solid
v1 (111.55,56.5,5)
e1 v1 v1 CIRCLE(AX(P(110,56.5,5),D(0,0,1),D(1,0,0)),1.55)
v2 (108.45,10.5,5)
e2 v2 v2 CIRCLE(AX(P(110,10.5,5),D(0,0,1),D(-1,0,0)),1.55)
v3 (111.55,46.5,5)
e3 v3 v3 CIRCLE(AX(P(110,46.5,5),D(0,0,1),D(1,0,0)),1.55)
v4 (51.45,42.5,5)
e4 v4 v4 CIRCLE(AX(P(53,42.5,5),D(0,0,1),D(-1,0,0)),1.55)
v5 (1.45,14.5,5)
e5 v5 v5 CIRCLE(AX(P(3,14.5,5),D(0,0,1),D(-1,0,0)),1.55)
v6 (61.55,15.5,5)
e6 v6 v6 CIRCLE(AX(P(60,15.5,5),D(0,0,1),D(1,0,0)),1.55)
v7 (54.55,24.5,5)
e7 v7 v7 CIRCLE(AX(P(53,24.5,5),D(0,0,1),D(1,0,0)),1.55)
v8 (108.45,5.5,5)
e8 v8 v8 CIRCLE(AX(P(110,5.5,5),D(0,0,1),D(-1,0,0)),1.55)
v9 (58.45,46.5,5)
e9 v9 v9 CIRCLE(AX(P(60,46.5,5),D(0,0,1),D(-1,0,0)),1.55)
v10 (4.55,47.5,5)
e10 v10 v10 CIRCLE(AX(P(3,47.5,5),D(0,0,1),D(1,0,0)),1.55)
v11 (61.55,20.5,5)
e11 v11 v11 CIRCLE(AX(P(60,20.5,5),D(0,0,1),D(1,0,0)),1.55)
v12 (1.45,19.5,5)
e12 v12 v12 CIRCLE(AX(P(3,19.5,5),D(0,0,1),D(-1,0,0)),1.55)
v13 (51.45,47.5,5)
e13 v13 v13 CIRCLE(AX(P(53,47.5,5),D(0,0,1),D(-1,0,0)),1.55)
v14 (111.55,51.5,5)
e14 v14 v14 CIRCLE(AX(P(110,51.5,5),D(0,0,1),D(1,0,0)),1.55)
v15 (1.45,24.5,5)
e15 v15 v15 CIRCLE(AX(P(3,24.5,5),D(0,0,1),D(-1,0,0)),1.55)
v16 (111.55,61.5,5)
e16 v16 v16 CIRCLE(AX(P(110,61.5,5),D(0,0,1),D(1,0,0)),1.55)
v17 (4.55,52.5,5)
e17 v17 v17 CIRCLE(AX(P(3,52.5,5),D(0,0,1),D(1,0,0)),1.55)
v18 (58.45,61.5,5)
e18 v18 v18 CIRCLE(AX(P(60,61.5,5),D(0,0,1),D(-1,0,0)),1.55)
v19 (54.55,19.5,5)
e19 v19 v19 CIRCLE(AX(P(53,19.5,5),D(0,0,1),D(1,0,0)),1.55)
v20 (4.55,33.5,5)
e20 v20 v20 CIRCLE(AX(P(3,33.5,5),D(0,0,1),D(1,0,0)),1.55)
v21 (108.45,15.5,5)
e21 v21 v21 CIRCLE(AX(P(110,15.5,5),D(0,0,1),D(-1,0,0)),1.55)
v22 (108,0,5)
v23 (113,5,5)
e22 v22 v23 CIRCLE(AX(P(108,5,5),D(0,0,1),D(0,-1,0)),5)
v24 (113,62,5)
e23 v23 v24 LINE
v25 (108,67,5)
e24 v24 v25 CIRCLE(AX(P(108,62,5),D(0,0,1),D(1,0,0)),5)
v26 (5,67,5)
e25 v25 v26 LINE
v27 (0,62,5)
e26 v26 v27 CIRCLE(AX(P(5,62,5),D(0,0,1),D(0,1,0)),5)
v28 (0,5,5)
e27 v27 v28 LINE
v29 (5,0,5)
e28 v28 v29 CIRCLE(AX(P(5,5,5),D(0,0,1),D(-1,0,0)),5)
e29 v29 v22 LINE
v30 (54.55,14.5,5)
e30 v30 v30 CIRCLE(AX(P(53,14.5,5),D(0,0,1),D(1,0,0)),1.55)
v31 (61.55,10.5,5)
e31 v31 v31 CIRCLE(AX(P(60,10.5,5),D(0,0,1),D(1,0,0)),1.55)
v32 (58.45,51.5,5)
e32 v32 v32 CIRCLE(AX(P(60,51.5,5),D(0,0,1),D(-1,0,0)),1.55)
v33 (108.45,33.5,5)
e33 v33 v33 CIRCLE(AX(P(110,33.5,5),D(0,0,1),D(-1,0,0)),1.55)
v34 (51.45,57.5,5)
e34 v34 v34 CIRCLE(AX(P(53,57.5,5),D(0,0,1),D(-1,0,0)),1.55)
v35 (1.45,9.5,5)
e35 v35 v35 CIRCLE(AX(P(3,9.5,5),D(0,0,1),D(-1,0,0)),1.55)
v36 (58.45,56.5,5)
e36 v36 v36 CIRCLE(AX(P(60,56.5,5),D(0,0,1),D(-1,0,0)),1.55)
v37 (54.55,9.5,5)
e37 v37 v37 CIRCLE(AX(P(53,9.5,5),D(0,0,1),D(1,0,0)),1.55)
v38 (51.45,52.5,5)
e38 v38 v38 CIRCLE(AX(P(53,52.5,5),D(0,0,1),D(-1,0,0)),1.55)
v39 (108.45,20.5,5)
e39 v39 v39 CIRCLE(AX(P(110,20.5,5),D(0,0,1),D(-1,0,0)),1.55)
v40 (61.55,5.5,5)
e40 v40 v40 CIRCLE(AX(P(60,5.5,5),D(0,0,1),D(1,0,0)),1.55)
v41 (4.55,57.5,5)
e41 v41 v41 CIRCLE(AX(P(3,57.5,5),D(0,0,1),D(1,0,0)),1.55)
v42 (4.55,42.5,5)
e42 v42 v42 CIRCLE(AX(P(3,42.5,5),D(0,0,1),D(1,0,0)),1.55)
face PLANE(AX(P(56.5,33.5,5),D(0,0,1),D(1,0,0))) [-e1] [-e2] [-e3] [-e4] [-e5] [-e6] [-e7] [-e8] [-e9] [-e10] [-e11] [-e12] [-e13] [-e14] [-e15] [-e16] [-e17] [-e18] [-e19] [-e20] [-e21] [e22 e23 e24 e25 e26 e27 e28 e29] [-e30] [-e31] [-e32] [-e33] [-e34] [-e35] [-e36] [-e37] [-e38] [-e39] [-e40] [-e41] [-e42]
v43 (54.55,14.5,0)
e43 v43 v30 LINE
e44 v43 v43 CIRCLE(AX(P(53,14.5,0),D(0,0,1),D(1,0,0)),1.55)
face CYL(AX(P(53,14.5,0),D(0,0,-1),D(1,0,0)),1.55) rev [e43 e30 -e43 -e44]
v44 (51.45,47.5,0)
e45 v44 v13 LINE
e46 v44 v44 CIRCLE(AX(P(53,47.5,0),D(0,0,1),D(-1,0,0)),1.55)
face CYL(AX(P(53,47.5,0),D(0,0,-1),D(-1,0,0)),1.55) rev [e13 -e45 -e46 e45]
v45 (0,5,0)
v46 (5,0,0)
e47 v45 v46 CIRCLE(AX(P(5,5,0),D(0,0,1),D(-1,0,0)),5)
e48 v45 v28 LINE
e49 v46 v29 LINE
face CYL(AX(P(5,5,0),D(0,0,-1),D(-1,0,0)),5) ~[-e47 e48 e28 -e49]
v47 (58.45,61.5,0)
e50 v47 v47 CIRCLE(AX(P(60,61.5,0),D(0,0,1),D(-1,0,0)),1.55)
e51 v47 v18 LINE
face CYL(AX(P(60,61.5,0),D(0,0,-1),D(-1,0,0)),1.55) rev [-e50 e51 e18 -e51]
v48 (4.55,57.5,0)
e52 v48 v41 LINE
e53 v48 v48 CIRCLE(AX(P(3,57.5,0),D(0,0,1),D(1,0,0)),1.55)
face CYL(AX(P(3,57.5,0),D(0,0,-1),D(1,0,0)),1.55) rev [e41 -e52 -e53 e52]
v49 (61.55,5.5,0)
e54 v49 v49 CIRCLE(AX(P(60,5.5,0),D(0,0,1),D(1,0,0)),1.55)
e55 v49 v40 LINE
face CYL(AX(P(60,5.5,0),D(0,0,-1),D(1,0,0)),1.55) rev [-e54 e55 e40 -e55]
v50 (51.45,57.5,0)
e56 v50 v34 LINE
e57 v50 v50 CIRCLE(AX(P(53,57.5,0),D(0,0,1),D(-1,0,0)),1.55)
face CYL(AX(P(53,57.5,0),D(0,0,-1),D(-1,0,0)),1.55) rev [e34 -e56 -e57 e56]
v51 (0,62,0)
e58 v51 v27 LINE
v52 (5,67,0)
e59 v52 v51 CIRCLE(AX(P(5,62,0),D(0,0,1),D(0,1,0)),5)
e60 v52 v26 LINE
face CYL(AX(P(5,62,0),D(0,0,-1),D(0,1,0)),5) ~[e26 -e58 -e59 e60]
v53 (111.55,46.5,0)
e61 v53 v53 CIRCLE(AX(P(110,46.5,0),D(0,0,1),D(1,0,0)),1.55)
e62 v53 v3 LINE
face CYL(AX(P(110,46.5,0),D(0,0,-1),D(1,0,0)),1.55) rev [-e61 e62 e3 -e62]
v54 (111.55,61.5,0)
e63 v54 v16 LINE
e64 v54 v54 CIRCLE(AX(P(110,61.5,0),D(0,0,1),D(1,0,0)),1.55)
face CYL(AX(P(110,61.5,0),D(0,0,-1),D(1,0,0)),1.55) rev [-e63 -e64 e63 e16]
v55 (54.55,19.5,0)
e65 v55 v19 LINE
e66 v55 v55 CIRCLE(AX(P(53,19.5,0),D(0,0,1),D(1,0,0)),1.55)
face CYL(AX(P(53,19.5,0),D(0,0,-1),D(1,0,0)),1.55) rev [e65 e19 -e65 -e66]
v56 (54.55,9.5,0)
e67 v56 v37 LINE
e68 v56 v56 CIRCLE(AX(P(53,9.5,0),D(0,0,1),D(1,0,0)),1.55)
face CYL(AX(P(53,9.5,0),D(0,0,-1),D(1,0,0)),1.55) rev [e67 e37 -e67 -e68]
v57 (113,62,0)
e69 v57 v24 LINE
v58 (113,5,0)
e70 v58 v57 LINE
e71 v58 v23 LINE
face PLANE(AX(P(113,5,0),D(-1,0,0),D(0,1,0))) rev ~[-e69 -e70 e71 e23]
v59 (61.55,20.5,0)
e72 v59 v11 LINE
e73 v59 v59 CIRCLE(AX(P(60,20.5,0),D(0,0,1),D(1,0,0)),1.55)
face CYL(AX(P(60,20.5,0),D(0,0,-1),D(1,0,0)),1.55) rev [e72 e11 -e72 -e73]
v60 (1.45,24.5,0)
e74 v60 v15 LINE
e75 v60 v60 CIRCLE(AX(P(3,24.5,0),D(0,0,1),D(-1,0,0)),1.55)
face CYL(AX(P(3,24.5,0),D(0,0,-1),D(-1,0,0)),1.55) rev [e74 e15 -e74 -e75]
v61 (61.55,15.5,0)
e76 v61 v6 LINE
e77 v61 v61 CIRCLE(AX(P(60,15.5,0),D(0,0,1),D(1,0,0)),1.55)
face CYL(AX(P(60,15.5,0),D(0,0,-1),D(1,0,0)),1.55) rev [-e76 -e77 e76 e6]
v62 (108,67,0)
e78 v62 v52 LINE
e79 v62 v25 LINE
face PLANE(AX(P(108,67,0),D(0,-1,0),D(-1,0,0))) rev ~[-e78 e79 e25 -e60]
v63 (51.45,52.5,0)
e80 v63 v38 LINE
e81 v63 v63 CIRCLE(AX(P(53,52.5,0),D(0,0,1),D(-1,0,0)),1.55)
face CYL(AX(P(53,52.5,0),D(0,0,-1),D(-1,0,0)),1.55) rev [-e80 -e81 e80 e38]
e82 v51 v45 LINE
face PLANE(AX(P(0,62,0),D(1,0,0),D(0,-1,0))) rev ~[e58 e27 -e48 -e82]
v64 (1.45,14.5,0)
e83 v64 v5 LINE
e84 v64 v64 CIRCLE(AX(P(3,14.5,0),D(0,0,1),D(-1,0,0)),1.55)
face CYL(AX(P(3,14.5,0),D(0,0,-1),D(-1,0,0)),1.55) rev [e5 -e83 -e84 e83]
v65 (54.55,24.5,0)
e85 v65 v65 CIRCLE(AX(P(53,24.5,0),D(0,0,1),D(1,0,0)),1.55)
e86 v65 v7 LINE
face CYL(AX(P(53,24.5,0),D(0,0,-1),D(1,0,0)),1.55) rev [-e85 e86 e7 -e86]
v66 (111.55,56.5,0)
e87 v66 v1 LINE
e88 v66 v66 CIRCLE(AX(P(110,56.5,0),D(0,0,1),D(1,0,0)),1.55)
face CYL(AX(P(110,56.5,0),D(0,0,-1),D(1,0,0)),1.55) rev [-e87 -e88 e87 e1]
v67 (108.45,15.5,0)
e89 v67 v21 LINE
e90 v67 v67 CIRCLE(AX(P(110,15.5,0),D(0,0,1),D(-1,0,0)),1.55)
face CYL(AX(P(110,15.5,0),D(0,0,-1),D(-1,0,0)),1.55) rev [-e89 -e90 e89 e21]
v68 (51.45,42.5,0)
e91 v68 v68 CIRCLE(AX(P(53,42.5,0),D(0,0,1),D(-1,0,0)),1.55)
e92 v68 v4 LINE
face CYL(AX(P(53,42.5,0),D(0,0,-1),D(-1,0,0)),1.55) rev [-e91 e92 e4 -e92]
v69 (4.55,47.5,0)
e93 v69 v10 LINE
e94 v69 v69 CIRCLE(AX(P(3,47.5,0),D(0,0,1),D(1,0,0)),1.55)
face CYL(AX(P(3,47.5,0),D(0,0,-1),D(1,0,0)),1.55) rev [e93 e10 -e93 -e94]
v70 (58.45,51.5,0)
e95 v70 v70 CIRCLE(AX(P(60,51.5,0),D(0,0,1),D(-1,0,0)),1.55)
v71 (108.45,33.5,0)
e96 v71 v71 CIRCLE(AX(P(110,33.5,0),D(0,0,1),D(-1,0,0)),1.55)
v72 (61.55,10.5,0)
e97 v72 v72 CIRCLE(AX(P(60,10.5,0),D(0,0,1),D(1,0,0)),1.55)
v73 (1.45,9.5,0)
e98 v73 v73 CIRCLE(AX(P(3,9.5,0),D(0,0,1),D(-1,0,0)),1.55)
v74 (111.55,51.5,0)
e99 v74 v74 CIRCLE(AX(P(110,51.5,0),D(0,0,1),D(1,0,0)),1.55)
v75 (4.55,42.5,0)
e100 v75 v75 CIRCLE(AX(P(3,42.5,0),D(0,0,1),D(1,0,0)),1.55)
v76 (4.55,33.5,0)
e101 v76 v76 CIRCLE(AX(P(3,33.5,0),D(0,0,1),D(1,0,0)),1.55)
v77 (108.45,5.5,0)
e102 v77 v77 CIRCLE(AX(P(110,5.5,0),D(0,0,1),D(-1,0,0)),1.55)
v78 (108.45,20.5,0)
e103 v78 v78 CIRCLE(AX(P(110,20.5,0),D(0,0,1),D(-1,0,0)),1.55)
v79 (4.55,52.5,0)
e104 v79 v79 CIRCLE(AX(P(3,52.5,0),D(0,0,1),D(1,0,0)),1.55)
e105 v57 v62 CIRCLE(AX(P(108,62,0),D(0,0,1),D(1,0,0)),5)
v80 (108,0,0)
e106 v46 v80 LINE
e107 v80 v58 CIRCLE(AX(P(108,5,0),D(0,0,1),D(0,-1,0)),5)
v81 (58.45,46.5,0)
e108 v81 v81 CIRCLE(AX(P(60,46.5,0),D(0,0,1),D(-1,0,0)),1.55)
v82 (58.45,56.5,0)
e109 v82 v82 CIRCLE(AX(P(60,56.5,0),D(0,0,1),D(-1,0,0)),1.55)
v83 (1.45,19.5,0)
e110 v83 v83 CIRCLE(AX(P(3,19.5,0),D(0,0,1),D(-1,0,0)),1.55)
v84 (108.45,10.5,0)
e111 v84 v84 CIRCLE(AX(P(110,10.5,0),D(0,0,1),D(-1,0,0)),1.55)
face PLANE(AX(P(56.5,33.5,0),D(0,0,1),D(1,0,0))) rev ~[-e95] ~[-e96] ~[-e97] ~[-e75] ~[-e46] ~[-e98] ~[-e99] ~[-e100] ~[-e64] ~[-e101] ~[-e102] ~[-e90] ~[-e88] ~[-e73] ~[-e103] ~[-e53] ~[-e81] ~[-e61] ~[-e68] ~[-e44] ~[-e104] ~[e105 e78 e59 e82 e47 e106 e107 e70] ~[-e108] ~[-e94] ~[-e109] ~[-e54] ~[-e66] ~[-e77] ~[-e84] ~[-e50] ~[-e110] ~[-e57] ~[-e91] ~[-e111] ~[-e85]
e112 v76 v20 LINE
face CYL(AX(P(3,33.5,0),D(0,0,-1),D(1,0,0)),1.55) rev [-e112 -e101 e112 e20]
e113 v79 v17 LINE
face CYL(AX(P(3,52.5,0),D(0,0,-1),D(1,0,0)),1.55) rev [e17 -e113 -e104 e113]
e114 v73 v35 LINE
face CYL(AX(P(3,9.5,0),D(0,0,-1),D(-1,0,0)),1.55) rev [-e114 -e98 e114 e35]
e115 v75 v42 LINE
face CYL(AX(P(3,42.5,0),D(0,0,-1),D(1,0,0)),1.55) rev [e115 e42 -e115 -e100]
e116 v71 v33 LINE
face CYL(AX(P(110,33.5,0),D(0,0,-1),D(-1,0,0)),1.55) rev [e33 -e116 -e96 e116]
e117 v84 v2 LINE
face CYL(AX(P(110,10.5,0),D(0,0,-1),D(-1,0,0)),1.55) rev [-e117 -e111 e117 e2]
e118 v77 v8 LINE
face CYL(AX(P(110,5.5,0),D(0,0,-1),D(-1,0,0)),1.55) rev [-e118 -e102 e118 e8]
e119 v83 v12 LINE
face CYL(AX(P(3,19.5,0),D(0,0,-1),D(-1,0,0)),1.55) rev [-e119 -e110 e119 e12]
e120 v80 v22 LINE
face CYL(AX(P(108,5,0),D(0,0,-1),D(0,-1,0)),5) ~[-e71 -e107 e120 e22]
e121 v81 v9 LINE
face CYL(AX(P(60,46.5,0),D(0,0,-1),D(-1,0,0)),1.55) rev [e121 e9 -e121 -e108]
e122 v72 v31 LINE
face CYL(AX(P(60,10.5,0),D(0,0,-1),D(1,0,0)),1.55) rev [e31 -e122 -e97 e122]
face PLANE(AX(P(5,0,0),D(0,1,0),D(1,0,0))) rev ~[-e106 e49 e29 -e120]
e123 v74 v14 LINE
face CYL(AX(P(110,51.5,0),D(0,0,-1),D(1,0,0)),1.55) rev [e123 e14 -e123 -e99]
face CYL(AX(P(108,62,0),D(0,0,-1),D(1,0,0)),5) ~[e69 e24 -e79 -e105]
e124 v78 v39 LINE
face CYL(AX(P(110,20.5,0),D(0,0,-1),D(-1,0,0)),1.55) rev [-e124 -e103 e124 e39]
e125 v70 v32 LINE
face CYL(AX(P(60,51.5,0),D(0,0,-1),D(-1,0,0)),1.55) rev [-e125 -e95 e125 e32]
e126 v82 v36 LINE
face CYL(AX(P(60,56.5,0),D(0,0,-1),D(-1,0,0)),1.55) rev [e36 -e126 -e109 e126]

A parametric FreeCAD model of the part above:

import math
import FreeCAD as App
import Part
import Sketcher

V = App.Vector
Q = App.Units.Quantity

doc = App.newDocument("Part")
body = doc.addObject("PartDesign::Body", "Body")

# Sketch on XY plane
sketch1 = doc.addObject("Sketcher::SketchObject", "Sketch")
body.addObject(sketch1)
sketch1.AttachmentSupport = (doc.XY_Plane, [""])
sketch1.MapMode = "FlatFace"
sketch1.addGeometry([
    Part.LineSegment(V(5, 0, 0), V(108, 0, 0)),  # 0
    Part.ArcOfCircle(Part.Circle(V(108, 5, 0), V(0, 0, 1), 5), math.radians(-90), math.radians(0)),  # 1
    Part.LineSegment(V(113, 5, 0), V(113, 62, 0)),  # 2
    Part.ArcOfCircle(Part.Circle(V(108, 62, 0), V(0, 0, 1), 5), math.radians(0), math.radians(90)),  # 3
    Part.LineSegment(V(108, 67, 0), V(5, 67, 0)),  # 4
    Part.ArcOfCircle(Part.Circle(V(5, 62, 0), V(0, 0, 1), 5), math.radians(90), math.radians(180)),  # 5
    Part.LineSegment(V(0, 62, 0), V(0, 5, 0)),  # 6
    Part.ArcOfCircle(Part.Circle(V(5, 5, 0), V(0, 0, 1), 5), math.radians(180), math.radians(270)),  # 7
    Part.Circle(V(3, 9.5, 0), V(0, 0, 1), 1.6),  # 8
    Part.Circle(V(3, 14.5, 0), V(0, 0, 1), 1.6),  # 9
    Part.Circle(V(53, 9.5, 0), V(0, 0, 1), 1.6),  # 10
    Part.Circle(V(53, 14.5, 0), V(0, 0, 1), 1.6),  # 11
    Part.Circle(V(3, 19.5, 0), V(0, 0, 1), 1.6),  # 12
    Part.Circle(V(3, 24.5, 0), V(0, 0, 1), 1.6),  # 13
    Part.Circle(V(53, 19.5, 0), V(0, 0, 1), 1.6),  # 14
    Part.Circle(V(53, 24.5, 0), V(0, 0, 1), 1.6),  # 15
    Part.Circle(V(60, 5.5, 0), V(0, 0, 1), 1.6),  # 16
    Part.Circle(V(60, 10.5, 0), V(0, 0, 1), 1.6),  # 17
    Part.Circle(V(60, 15.5, 0), V(0, 0, 1), 1.6),  # 18
    Part.Circle(V(110, 5.5, 0), V(0, 0, 1), 1.6),  # 19
    Part.Circle(V(110, 10.5, 0), V(0, 0, 1), 1.6),  # 20
    Part.Circle(V(110, 15.5, 0), V(0, 0, 1), 1.6),  # 21
    Part.Circle(V(60, 20.5, 0), V(0, 0, 1), 1.6),  # 22
    Part.Circle(V(110, 20.5, 0), V(0, 0, 1), 1.6),  # 23
    Part.Circle(V(3, 33.5, 0), V(0, 0, 1), 1.6),  # 24
    Part.Circle(V(3, 42.5, 0), V(0, 0, 1), 1.6),  # 25
    Part.Circle(V(3, 47.5, 0), V(0, 0, 1), 1.6),  # 26
    Part.Circle(V(53, 42.5, 0), V(0, 0, 1), 1.6),  # 27
    Part.Circle(V(53, 47.5, 0), V(0, 0, 1), 1.6),  # 28
    Part.Circle(V(3, 52.5, 0), V(0, 0, 1), 1.6),  # 29
    Part.Circle(V(3, 57.5, 0), V(0, 0, 1), 1.6),  # 30
    Part.Circle(V(53, 52.5, 0), V(0, 0, 1), 1.6),  # 31
    Part.Circle(V(53, 57.5, 0), V(0, 0, 1), 1.6),  # 32
    Part.Circle(V(60, 46.5, 0), V(0, 0, 1), 1.6),  # 33
    Part.Circle(V(110, 33.5, 0), V(0, 0, 1), 1.6),  # 34
    Part.Circle(V(110, 46.5, 0), V(0, 0, 1), 1.6),  # 35
    Part.Circle(V(60, 51.5, 0), V(0, 0, 1), 1.6),  # 36
    Part.Circle(V(60, 56.5, 0), V(0, 0, 1), 1.6),  # 37
    Part.Circle(V(60, 61.5, 0), V(0, 0, 1), 1.6),  # 38
    Part.Circle(V(110, 51.5, 0), V(0, 0, 1), 1.6),  # 39
    Part.Circle(V(110, 56.5, 0), V(0, 0, 1), 1.6),  # 40
    Part.Circle(V(110, 61.5, 0), V(0, 0, 1), 1.6),  # 41
], False)
sketch1.addConstraint([
    Sketcher.Constraint("Tangent", 0, 2, 1, 1),
    Sketcher.Constraint("Tangent", 1, 2, 2, 1),
    Sketcher.Constraint("Tangent", 2, 2, 3, 1),
    Sketcher.Constraint("Tangent", 3, 2, 4, 1),
    Sketcher.Constraint("Tangent", 4, 2, 5, 1),
    Sketcher.Constraint("Tangent", 5, 2, 6, 1),
    Sketcher.Constraint("Tangent", 6, 2, 7, 1),
    Sketcher.Constraint("Tangent", 7, 2, 0, 1),
    Sketcher.Constraint("Horizontal", 0),
    Sketcher.Constraint("Vertical", 2),
    Sketcher.Constraint("Horizontal", 4),
    Sketcher.Constraint("Vertical", 6),
    Sketcher.Constraint("Equal", 1, 3),
    Sketcher.Constraint("Equal", 3, 5),
    Sketcher.Constraint("Equal", 5, 7),
    Sketcher.Constraint("Equal", 8, 9),
    Sketcher.Constraint("Equal", 9, 10),
    Sketcher.Constraint("Equal", 10, 11),
    Sketcher.Constraint("Equal", 11, 12),
    Sketcher.Constraint("Equal", 12, 13),
    Sketcher.Constraint("Equal", 13, 14),
    Sketcher.Constraint("Equal", 14, 15),
    Sketcher.Constraint("Equal", 15, 16),
    Sketcher.Constraint("Equal", 16, 17),
    Sketcher.Constraint("Equal", 17, 18),
    Sketcher.Constraint("Equal", 18, 19),
    Sketcher.Constraint("Equal", 19, 20),
    Sketcher.Constraint("Equal", 20, 21),
    Sketcher.Constraint("Equal", 21, 22),
    Sketcher.Constraint("Equal", 22, 23),
    Sketcher.Constraint("Equal", 23, 24),
    Sketcher.Constraint("Equal", 24, 25),
    Sketcher.Constraint("Equal", 25, 26),
    Sketcher.Constraint("Equal", 26, 27),
    Sketcher.Constraint("Equal", 27, 28),
    Sketcher.Constraint("Equal", 28, 29),
    Sketcher.Constraint("Equal", 29, 30),
    Sketcher.Constraint("Equal", 30, 31),
    Sketcher.Constraint("Equal", 31, 32),
    Sketcher.Constraint("Equal", 32, 33),
    Sketcher.Constraint("Equal", 33, 34),
    Sketcher.Constraint("Equal", 34, 35),
    Sketcher.Constraint("Equal", 35, 36),
    Sketcher.Constraint("Equal", 36, 37),
    Sketcher.Constraint("Equal", 37, 38),
    Sketcher.Constraint("Equal", 38, 39),
    Sketcher.Constraint("Equal", 39, 40),
    Sketcher.Constraint("Equal", 40, 41),
    Sketcher.Constraint("PointOnObject", 0, 2, -1),
    Sketcher.Constraint("PointOnObject", 5, 2, -2),
    Sketcher.Constraint("Horizontal", 8, 3, 10, 3),
    Sketcher.Constraint("Horizontal", 9, 3, 11, 3),
    Sketcher.Constraint("Horizontal", 12, 3, 14, 3),
    Sketcher.Constraint("Horizontal", 13, 3, 15, 3),
    Sketcher.Constraint("Horizontal", 16, 3, 19, 3),
    Sketcher.Constraint("Horizontal", 17, 3, 20, 3),
    Sketcher.Constraint("Horizontal", 18, 3, 21, 3),
    Sketcher.Constraint("Horizontal", 22, 3, 23, 3),
    Sketcher.Constraint("Horizontal", 25, 3, 27, 3),
    Sketcher.Constraint("Horizontal", 26, 3, 28, 3),
    Sketcher.Constraint("Horizontal", 29, 3, 31, 3),
    Sketcher.Constraint("Horizontal", 30, 3, 32, 3),
    Sketcher.Constraint("Horizontal", 24, 3, 34, 3),
    Sketcher.Constraint("Horizontal", 33, 3, 35, 3),
    Sketcher.Constraint("Horizontal", 36, 3, 39, 3),
    Sketcher.Constraint("Horizontal", 37, 3, 40, 3),
    Sketcher.Constraint("Horizontal", 38, 3, 41, 3),
    Sketcher.Constraint("Vertical", 8, 3, 9, 3),
    Sketcher.Constraint("Vertical", 10, 3, 11, 3),
    Sketcher.Constraint("Vertical", 9, 3, 12, 3),
    Sketcher.Constraint("Vertical", 12, 3, 13, 3),
    Sketcher.Constraint("Vertical", 11, 3, 14, 3),
    Sketcher.Constraint("Vertical", 14, 3, 15, 3),
    Sketcher.Constraint("Vertical", 16, 3, 17, 3),
    Sketcher.Constraint("Vertical", 17, 3, 18, 3),
    Sketcher.Constraint("Vertical", 19, 3, 20, 3),
    Sketcher.Constraint("Vertical", 20, 3, 21, 3),
    Sketcher.Constraint("Vertical", 18, 3, 22, 3),
    Sketcher.Constraint("Vertical", 21, 3, 23, 3),
    Sketcher.Constraint("Vertical", 13, 3, 24, 3),
    Sketcher.Constraint("Vertical", 24, 3, 25, 3),
    Sketcher.Constraint("Vertical", 25, 3, 26, 3),
    Sketcher.Constraint("Vertical", 15, 3, 27, 3),
    Sketcher.Constraint("Vertical", 27, 3, 28, 3),
    Sketcher.Constraint("Vertical", 26, 3, 29, 3),
    Sketcher.Constraint("Vertical", 29, 3, 30, 3),
    Sketcher.Constraint("Vertical", 28, 3, 31, 3),
    Sketcher.Constraint("Vertical", 31, 3, 32, 3),
    Sketcher.Constraint("Vertical", 22, 3, 33, 3),
    Sketcher.Constraint("Vertical", 23, 3, 34, 3),
    Sketcher.Constraint("Vertical", 34, 3, 35, 3),
    Sketcher.Constraint("Vertical", 33, 3, 36, 3),
    Sketcher.Constraint("Vertical", 36, 3, 37, 3),
    Sketcher.Constraint("Vertical", 37, 3, 38, 3),
    Sketcher.Constraint("Vertical", 35, 3, 39, 3),
    Sketcher.Constraint("Vertical", 39, 3, 40, 3),
    Sketcher.Constraint("Vertical", 40, 3, 41, 3),
    Sketcher.Constraint("Radius", 1, Q("5 mm")),
    Sketcher.Constraint("Diameter", 8, Q("3.1 mm")),
    Sketcher.Constraint("DistanceX", 0, 1, 0, 2, Q("103 mm")),
    Sketcher.Constraint("DistanceY", 2, 1, 2, 2, Q("57 mm")),
    Sketcher.Constraint("DistanceX", -1, 1, 8, 3, Q("3 mm")),
    Sketcher.Constraint("DistanceX", -1, 1, 10, 3, Q("53 mm")),
    Sketcher.Constraint("DistanceX", -1, 1, 16, 3, Q("60 mm")),
    Sketcher.Constraint("DistanceX", -1, 1, 19, 3, Q("110 mm")),
    Sketcher.Constraint("DistanceY", 8, 3, 9, 3, Q("5 mm")),
    Sketcher.Constraint("DistanceY", 9, 3, 12, 3, Q("5 mm")),
    Sketcher.Constraint("DistanceY", 12, 3, 13, 3, Q("5 mm")),
    Sketcher.Constraint("DistanceY", 16, 3, 10, 3, Q("4 mm")),
    Sketcher.Constraint("DistanceY", 16, 3, 17, 3, Q("5 mm")),
    Sketcher.Constraint("DistanceY", 17, 3, 18, 3, Q("5 mm")),
    Sketcher.Constraint("DistanceY", 18, 3, 22, 3, Q("5 mm")),
    Sketcher.Constraint("DistanceY", 13, 3, 24, 3, Q("9 mm")),
    Sketcher.Constraint("DistanceY", 24, 3, 25, 3, Q("9 mm")),
    Sketcher.Constraint("DistanceY", 25, 3, 26, 3, Q("5 mm")),
    Sketcher.Constraint("DistanceY", 26, 3, 29, 3, Q("5 mm")),
    Sketcher.Constraint("DistanceY", 29, 3, 30, 3, Q("5 mm")),
    Sketcher.Constraint("DistanceY", 33, 3, 28, 3, Q("1 mm")),
    Sketcher.Constraint("DistanceY", 33, 3, 36, 3, Q("5 mm")),
    Sketcher.Constraint("DistanceY", 36, 3, 37, 3, Q("5 mm")),
    Sketcher.Constraint("DistanceY", 37, 3, 38, 3, Q("5 mm")),
    Sketcher.Constraint("DistanceY", -1, 1, 8, 3, Q("9.5 mm")),
])
pad1 = doc.addObject("PartDesign::Pad", "Pad")
body.addObject(pad1)
pad1.Profile = sketch1
pad1.Length = 5

doc.recompute()
